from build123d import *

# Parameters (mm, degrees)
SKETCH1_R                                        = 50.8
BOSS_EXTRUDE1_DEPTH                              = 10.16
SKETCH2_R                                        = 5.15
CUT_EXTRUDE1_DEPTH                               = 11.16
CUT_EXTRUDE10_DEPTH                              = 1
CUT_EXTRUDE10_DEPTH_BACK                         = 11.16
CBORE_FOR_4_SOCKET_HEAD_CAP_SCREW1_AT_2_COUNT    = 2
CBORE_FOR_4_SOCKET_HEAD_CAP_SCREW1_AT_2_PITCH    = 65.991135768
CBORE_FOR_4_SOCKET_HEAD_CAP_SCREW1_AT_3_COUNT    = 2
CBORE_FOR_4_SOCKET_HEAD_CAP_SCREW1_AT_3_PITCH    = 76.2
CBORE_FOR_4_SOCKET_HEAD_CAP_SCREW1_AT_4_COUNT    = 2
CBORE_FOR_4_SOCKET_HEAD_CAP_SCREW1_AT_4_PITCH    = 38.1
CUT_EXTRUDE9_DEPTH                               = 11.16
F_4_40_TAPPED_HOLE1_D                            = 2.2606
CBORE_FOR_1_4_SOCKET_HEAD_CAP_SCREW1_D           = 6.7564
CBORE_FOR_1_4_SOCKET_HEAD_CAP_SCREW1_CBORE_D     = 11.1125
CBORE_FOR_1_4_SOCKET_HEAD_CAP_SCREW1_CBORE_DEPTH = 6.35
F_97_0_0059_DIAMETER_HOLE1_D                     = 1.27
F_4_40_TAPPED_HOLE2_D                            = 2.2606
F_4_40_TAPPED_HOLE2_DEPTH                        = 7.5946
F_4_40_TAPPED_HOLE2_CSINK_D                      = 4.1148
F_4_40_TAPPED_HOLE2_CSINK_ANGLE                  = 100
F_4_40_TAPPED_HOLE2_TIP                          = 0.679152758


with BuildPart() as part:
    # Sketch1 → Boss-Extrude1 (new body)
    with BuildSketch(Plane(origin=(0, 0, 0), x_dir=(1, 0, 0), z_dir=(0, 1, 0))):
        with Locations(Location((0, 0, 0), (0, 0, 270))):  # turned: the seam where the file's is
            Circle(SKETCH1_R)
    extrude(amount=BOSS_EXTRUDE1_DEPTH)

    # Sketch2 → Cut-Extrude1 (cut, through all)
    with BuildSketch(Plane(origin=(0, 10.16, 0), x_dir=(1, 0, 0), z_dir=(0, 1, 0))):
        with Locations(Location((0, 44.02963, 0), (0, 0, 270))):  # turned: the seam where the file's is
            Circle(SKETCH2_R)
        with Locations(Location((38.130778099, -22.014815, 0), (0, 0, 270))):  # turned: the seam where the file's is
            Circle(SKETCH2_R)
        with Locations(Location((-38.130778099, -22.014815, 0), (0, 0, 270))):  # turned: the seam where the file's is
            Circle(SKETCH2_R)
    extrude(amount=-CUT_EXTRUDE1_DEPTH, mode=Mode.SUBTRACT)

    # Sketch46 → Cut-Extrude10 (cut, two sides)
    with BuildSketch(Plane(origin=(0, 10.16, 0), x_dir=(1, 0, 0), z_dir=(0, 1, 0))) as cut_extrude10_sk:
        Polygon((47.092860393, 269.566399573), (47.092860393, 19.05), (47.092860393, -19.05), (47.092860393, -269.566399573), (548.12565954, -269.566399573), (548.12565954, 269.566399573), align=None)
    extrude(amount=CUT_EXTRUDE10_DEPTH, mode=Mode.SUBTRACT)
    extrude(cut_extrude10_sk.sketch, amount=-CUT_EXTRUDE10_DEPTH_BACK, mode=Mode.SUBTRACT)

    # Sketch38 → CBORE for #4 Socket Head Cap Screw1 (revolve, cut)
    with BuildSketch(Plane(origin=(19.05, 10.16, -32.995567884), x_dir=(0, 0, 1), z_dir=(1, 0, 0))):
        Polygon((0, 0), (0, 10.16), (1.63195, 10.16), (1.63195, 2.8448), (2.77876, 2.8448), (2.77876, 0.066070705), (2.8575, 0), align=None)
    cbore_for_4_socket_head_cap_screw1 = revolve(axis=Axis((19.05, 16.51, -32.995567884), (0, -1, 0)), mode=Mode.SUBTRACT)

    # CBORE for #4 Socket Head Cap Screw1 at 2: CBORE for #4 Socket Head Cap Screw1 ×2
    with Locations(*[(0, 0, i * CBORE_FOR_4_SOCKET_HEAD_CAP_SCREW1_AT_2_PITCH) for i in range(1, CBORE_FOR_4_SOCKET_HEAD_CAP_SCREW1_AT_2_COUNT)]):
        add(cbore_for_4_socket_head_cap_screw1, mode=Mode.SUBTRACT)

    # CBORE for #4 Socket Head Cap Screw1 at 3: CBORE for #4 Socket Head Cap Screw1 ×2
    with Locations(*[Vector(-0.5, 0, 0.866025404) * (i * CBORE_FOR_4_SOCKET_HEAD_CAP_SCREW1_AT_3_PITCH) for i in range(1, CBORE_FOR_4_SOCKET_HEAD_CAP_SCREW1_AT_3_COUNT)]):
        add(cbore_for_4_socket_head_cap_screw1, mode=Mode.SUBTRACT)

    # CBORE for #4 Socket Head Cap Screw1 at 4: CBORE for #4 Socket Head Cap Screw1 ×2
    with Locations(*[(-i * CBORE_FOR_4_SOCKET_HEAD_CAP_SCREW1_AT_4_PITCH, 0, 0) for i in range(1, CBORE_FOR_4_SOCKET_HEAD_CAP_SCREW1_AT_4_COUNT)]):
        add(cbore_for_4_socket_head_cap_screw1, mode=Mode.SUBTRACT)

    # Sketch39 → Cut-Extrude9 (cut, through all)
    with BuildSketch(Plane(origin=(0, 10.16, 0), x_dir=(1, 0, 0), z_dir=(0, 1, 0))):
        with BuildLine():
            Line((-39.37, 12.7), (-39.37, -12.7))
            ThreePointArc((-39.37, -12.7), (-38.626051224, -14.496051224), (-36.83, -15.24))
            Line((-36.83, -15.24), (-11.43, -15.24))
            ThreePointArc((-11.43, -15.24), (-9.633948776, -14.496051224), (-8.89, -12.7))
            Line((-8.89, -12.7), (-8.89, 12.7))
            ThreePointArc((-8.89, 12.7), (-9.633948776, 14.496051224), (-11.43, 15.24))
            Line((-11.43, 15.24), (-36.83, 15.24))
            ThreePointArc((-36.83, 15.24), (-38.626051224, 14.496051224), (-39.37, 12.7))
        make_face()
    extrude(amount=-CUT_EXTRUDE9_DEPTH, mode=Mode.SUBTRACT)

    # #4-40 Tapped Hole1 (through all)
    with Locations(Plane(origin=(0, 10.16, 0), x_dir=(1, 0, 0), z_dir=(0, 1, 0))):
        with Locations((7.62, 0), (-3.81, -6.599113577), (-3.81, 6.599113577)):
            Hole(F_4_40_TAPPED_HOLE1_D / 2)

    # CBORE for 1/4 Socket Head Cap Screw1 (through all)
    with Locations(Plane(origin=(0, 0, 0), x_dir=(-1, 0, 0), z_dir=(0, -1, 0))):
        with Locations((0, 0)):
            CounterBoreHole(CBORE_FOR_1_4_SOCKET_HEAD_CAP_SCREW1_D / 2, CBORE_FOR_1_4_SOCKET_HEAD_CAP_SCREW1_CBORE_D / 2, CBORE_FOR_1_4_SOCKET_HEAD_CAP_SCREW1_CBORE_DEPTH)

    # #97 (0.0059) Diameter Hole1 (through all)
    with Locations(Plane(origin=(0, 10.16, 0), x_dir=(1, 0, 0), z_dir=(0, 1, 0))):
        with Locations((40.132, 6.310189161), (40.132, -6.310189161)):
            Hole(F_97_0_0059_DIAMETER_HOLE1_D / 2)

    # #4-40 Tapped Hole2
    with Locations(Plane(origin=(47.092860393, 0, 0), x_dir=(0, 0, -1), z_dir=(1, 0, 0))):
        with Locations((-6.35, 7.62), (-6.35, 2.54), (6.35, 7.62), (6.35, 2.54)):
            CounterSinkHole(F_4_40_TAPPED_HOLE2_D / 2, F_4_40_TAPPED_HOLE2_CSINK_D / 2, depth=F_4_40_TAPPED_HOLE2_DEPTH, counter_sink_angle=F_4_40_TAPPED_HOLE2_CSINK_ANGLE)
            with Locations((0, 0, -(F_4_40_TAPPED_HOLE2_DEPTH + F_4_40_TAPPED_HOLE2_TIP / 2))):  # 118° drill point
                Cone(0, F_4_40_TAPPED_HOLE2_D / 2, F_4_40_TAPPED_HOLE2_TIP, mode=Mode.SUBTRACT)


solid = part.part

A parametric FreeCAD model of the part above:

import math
import FreeCAD as App
import Part
import Sketcher
Q = App.Units.Quantity


def add_polygon(sketch, points):
    """Adds a closed chain of lines whose ends are joined by coincident constraints."""
    first, n = sketch.GeometryCount, len(points)
    for a, b in zip(points, points[1:] + points[:1]):
        sketch.addGeometry(Part.LineSegment(App.Vector(*a, 0), App.Vector(*b, 0)), False)
    for i in range(n):
        sketch.addConstraint(Sketcher.Constraint("Coincident", first + i, 2, first + (i + 1) % n, 1))

doc = App.newDocument("Part")
body = doc.addObject("PartDesign::Body", "Body")

sketch1 = doc.addObject("Sketcher::SketchObject", "Sketch")
body.addObject(sketch1)
sketch1.AttachmentSupport = (doc.XZ_Plane, [""])
sketch1.MapMode = "FlatFace"
sketch1.addGeometry(Part.Circle(App.Vector(0, 0, 0), App.Vector(0, 0, 1), 51), False)
sketch1.addConstraint([
    Sketcher.Constraint("Coincident", 0, 3, -1, 1),
    Sketcher.Constraint("Diameter", 0, Q("4 in")),
])
pad1 = doc.addObject("PartDesign::Pad", "Pad")
body.addObject(pad1)
pad1.Profile = sketch1
pad1.Length = Q("0.4 in")
pad1.Reversed = True

sketch2 = doc.addObject("Sketcher::SketchObject", "Sketch001")
body.addObject(sketch2)
sketch2.AttachmentSupport = (doc.XZ_Plane, [""])
sketch2.MapMode = "FlatFace"
sketch2.AttachmentOffset = App.Placement(App.Vector(0, 0, -0.4 * 25.4), App.Rotation())
sketch2.addGeometry([
    Part.Circle(App.Vector(0, -44, 0), App.Vector(0, 0, 1), 5),
    Part.Circle(App.Vector(38, 22, 0), App.Vector(0, 0, 1), 5),
    Part.Circle(App.Vector(-38, 22, 0), App.Vector(0, 0, 1), 5),
], False)
sketch2.addConstraint([
    Sketcher.Constraint("Equal", 0, 1),
    Sketcher.Constraint("Equal", 1, 2),
    Sketcher.Constraint("Symmetric", 1, 3, 2, 3, -2),
    Sketcher.Constraint("PointOnObject", 0, 3, -2),
    Sketcher.Constraint("Diameter", 0, 10.3),
    Sketcher.Constraint("DistanceY", 0, 3, -1, 1, 44.02963),
    Sketcher.Constraint("DistanceX", -1, 1, 1, 3, 38.130778),
    Sketcher.Constraint("DistanceY", -1, 1, 1, 3, 22.014815),
])
pocket1 = doc.addObject("PartDesign::Pocket", "Pocket")
body.addObject(pocket1)
pocket1.Profile = sketch2
pocket1.Type = "ThroughAll"
pocket1.Reversed = True

sketch3 = doc.addObject("Sketcher::SketchObject", "Sketch002")
body.addObject(sketch3)
sketch3.AttachmentSupport = (doc.XZ_Plane, [""])
sketch3.MapMode = "FlatFace"
sketch3.AttachmentOffset = App.Placement(App.Vector(0, 0, -0.4 * 25.4), App.Rotation())
add_polygon(sketch3, [(47, -270), (47, 270), (548, 270), (548, -270)])
sketch3.addConstraint([
    Sketcher.Constraint("Vertical", 0),
    Sketcher.Constraint("Horizontal", 1),
    Sketcher.Constraint("Vertical", 2),
    Sketcher.Constraint("Horizontal", 3),
    Sketcher.Constraint("DistanceX", 1, 1, 1, 2, 501.032799),
    Sketcher.Constraint("DistanceY", 0, 1, 0, 2, 539.132799),
    Sketcher.Constraint("DistanceY", -1, 1, 0, 2, 269.5664),
    Sketcher.Constraint("DistanceX", -1, 1, 0, 2, 47.09286),
])
pocket2 = doc.addObject("PartDesign::Pocket", "Pocket001")
body.addObject(pocket2)
pocket2.Profile = sketch3
pocket2.Type = "ThroughAll"
pocket2.Midplane = True

sketch4 = doc.addObject("Sketcher::SketchObject", "Sketch003")
body.addObject(sketch4)
sketch4.AttachmentSupport = (doc.YZ_Plane, [""])
sketch4.MapMode = "FlatFace"
sketch4.AttachmentOffset = App.Placement(App.Vector(0, 0, 0.75 * 25.4), App.Rotation())
add_polygon(sketch4, [(0, -33), (10.16, -33), (10.16, -30.14), (10.09, -30.22), (7.32, -30.22), (7.32, -31.36), (0, -31.36)])
sketch4.addGeometry(Part.LineSegment(App.Vector(10.16, -33, 0), App.Vector(0, -33, 0)), True)
sketch4.addConstraint([
    Sketcher.Constraint("Horizontal", 0),
    Sketcher.Constraint("Vertical", 1),
    Sketcher.Constraint("Horizontal", 3),
    Sketcher.Constraint("Vertical", 4),
    Sketcher.Constraint("Horizontal", 5),
    Sketcher.Constraint("Vertical", 6),
    Sketcher.Constraint("Horizontal", 7),
    Sketcher.Constraint("Coincident", 7, 1, 0, 2),
    Sketcher.Constraint("PointOnObject", 5, 2, -2),
    Sketcher.Constraint("PointOnObject", 7, 2, -2),
    Sketcher.Constraint("DistanceX", 0, 1, 0, 2, Q("0.4 in")),
    Sketcher.Constraint("Angle", 2, Q("-130 deg")),
    Sketcher.Constraint("DistanceX", 5, 2, 5, 1, Q("0.288 in")),
    Sketcher.Constraint("DistanceY", 1, 1, 1, 2, Q("0.1125 in")),
    Sketcher.Constraint("DistanceY", 2, 2, 1, 2, Q("0.0031 in")),
    Sketcher.Constraint("DistanceY", 4, 2, 4, 1, 1.14681),
    Sketcher.Constraint("DistanceY", 0, 2, -1, 1, 32.995568),
])
groove = doc.addObject("PartDesign::Groove", "Groove")
body.addObject(groove)
groove.Profile = sketch4
groove.ReferenceAxis = (sketch4, ["Axis0"])
groove.Angle = 360
doc.recompute()

linearpattern = doc.addObject("PartDesign::LinearPattern", "LinearPattern")
body.addObject(linearpattern)
linearpattern.Originals = [groove]
linearpattern.Direction = (doc.Z_Axis, [""])
linearpattern.Mode = "offset"
linearpattern.Offset = 65.991136
linearpattern.Occurrences = 2
body.Tip = linearpattern
doc.recompute()

datumline = doc.addObject("PartDesign::Line", "DatumLine")
body.addObject(datumline)
datumline.Placement = App.Placement(App.Vector(0, 0, 0), App.Rotation(App.Vector(0, 0, 1), App.Vector(-0.5, 0, 0.866025404)))
linearpattern2 = doc.addObject("PartDesign::LinearPattern", "LinearPattern001")
body.addObject(linearpattern2)
linearpattern2.Originals = [groove]
linearpattern2.Direction = (datumline, [""])
linearpattern2.Mode = "offset"
linearpattern2.Offset = Q("3 in")
linearpattern2.Occurrences = 2
body.Tip = linearpattern2
doc.recompute()

linearpattern3 = doc.addObject("PartDesign::LinearPattern", "LinearPattern002")
body.addObject(linearpattern3)
linearpattern3.Originals = [groove]
linearpattern3.Direction = (doc.X_Axis, [""])
linearpattern3.Mode = "offset"
linearpattern3.Offset = Q("1.5 in")
linearpattern3.Occurrences = 2
linearpattern3.Reversed = True
body.Tip = linearpattern3

sketch5 = doc.addObject("Sketcher::SketchObject", "Sketch004")
body.addObject(sketch5)
sketch5.AttachmentSupport = (doc.XZ_Plane, [""])
sketch5.MapMode = "FlatFace"
sketch5.AttachmentOffset = App.Placement(App.Vector(0, 0, -0.4 * 25.4), App.Rotation())
sketch5.addGeometry([
    Part.LineSegment(App.Vector(-39.4, -12.7, 0), App.Vector(-39.4, 12.7, 0)),
    Part.ArcOfCircle(Part.Circle(App.Vector(-36.8, 12.7, 0), App.Vector(0, 0, 1), 2.5), math.radians(90), math.radians(180)),
    Part.LineSegment(App.Vector(-36.8, 15.2, 0), App.Vector(-11.4, 15.2, 0)),
    Part.ArcOfCircle(Part.Circle(App.Vector(-11.4, 12.7, 0), App.Vector(0, 0, 1), 2.5), math.radians(0), math.radians(90)),
    Part.LineSegment(App.Vector(-8.9, 12.7, 0), App.Vector(-8.9, -12.7, 0)),
    Part.ArcOfCircle(Part.Circle(App.Vector(-11.4, -12.7, 0), App.Vector(0, 0, 1), 2.5), math.radians(-90), math.radians(0)),
    Part.LineSegment(App.Vector(-11.4, -15.2, 0), App.Vector(-36.8, -15.2, 0)),
    Part.ArcOfCircle(Part.Circle(App.Vector(-36.8, -12.7, 0), App.Vector(0, 0, 1), 2.5), math.radians(-180), math.radians(-90)),
], False)
sketch5.addConstraint([
    Sketcher.Constraint("Tangent", 0, 2, 1, 2),
    Sketcher.Constraint("Tangent", 1, 1, 2, 1),
    Sketcher.Constraint("Tangent", 2, 2, 3, 2),
    Sketcher.Constraint("Tangent", 3, 1, 4, 1),
    Sketcher.Constraint("Tangent", 4, 2, 5, 2),
    Sketcher.Constraint("Tangent", 5, 1, 6, 1),
    Sketcher.Constraint("Tangent", 6, 2, 7, 2),
    Sketcher.Constraint("Tangent", 7, 1, 0, 1),
    Sketcher.Constraint("Vertical", 0),
    Sketcher.Constraint("Horizontal", 2),
    Sketcher.Constraint("Vertical", 4),
    Sketcher.Constraint("Horizontal", 6),
    Sketcher.Constraint("Equal", 1, 3),
    Sketcher.Constraint("Equal", 3, 5),
    Sketcher.Constraint("Equal", 5, 7),
    Sketcher.Constraint("Equal", 6, 0),
    Sketcher.Constraint("Radius", 1, Q("0.1 in")),
    Sketcher.Constraint("DistanceX", 2, 1, 2, 2, Q("1 in")),
    Sketcher.Constraint("DistanceY", -1, 1, 1, 3, Q("0.5 in")),
    Sketcher.Constraint("DistanceX", 1, 3, -1, 1, Q("1.45 in")),
])
pocket3 = doc.addObject("PartDesign::Pocket", "Pocket002")
body.addObject(pocket3)
pocket3.Profile = sketch5
pocket3.Type = "ThroughAll"
pocket3.Reversed = True

sketch6 = doc.addObject("Sketcher::SketchObject", "Sketch005")
body.addObject(sketch6)
sketch6.AttachmentSupport = (doc.XZ_Plane, [""])
sketch6.MapMode = "FlatFace"
sketch6.AttachmentOffset = App.Placement(App.Vector(0, 0, -0.4 * 25.4), App.Rotation())
sketch6.addGeometry([
    Part.Circle(App.Vector(7.6, 0, 0), App.Vector(0, 0, 1), 1.1),
    Part.Circle(App.Vector(-3.8, 6.6, 0), App.Vector(0, 0, 1), 1.1),
    Part.Circle(App.Vector(-3.8, -6.6, 0), App.Vector(0, 0, 1), 1.1),
], False)
sketch6.addConstraint([
    Sketcher.Constraint("Equal", 0, 1),
    Sketcher.Constraint("Equal", 1, 2),
    Sketcher.Constraint("Symmetric", 1, 3, 2, 3, -1),
    Sketcher.Constraint("PointOnObject", 0, 3, -1),
    Sketcher.Constraint("Diameter", 0, Q("0.089 in")),
    Sketcher.Constraint("DistanceX", -1, 1, 0, 3, Q("0.3 in")),
    Sketcher.Constraint("DistanceX", 1, 3, -1, 1, Q("0.15 in")),
    Sketcher.Constraint("DistanceY", -1, 1, 1, 3, 6.599114),
])
doc.recompute()
hole = doc.addObject("PartDesign::Hole", "Hole")
body.addObject(hole)
hole.Profile = sketch6
hole.ThreadType = "None"
hole.Diameter = Q("0.089 in")
hole.DepthType = "ThroughAll"
hole.Reversed = True

sketch7 = doc.addObject("Sketcher::SketchObject", "Sketch006")
body.addObject(sketch7)
sketch7.AttachmentSupport = (doc.XZ_Plane, [""])
sketch7.MapMode = "FlatFace"
sketch7.addGeometry(Part.Circle(App.Vector(0, 0, 0), App.Vector(0, 0, 1), 3.4), False)
sketch7.addConstraint([
    Sketcher.Constraint("Coincident", 0, 3, -1, 1),
    Sketcher.Constraint("Diameter", 0, Q("0.266 in")),
])
doc.recompute()
hole2 = doc.addObject("PartDesign::Hole", "Hole001")
body.addObject(hole2)
hole2.Profile = sketch7
hole2.ThreadType = "None"
hole2.Diameter = Q("0.266 in")
hole2.DepthType = "ThroughAll"
hole2.HoleCutType = "Counterbore"
hole2.HoleCutDiameter = Q("0.4375 in")
hole2.HoleCutDepth = Q("0.25 in")

sketch8 = doc.addObject("Sketcher::SketchObject", "Sketch007")
body.addObject(sketch8)
sketch8.AttachmentSupport = (doc.XZ_Plane, [""])
sketch8.MapMode = "FlatFace"
sketch8.AttachmentOffset = App.Placement(App.Vector(0, 0, -0.4 * 25.4), App.Rotation())
sketch8.addGeometry([
    Part.Circle(App.Vector(40.1, -6.3, 0), App.Vector(0, 0, 1), 0.6),
    Part.Circle(App.Vector(40.1, 6.3, 0), App.Vector(0, 0, 1), 0.6),
], False)
sketch8.addConstraint([
    Sketcher.Constraint("Equal", 0, 1),
    Sketcher.Constraint("Symmetric", 0, 3, 1, 3, -1),
    Sketcher.Constraint("Diameter", 0, Q("0.05 in")),
    Sketcher.Constraint("DistanceX", -1, 1, 0, 3, Q("1.58 in")),
    Sketcher.Constraint("DistanceY", 0, 3, -1, 1, 6.310189),
])
doc.recompute()
hole3 = doc.addObject("PartDesign::Hole", "Hole002")
body.addObject(hole3)
hole3.Profile = sketch8
hole3.ThreadType = "None"
hole3.Diameter = Q("0.05 in")
hole3.DepthType = "ThroughAll"
hole3.Reversed = True

sketch9 = doc.addObject("Sketcher::SketchObject", "Sketch008")
body.addObject(sketch9)
sketch9.AttachmentSupport = (doc.YZ_Plane, [""])
sketch9.MapMode = "FlatFace"
sketch9.AttachmentOffset = App.Placement(App.Vector(0, 0, 47.09286), App.Rotation())
sketch9.addGeometry([
    Part.Circle(App.Vector(7.6, 6.3, 0), App.Vector(0, 0, 1), 1.1),
    Part.Circle(App.Vector(2.5, 6.3, 0), App.Vector(0, 0, 1), 1.1),
    Part.Circle(App.Vector(7.6, -6.3, 0), App.Vector(0, 0, 1), 1.1),
    Part.Circle(App.Vector(2.5, -6.3, 0), App.Vector(0, 0, 1), 1.1),
], False)
sketch9.addConstraint([
    Sketcher.Constraint("Equal", 0, 1),
    Sketcher.Constraint("Equal", 1, 2),
    Sketcher.Constraint("Equal", 2, 3),
    Sketcher.Constraint("Symmetric", 0, 3, 2, 3, -1),
    Sketcher.Constraint("Symmetric", 1, 3, 3, 3, -1),
    Sketcher.Constraint("Horizontal", 0, 3, 1, 3),
    Sketcher.Constraint("Diameter", 0, Q("0.089 in")),
    Sketcher.Constraint("DistanceX", -1, 1, 0, 3, Q("0.3 in")),
    Sketcher.Constraint("DistanceX", -1, 1, 1, 3, Q("0.1 in")),
    Sketcher.Constraint("DistanceY", 2, 3, 0, 3, Q("0.5 in")),
])
doc.recompute()
hole4 = doc.addObject("PartDesign::Hole", "Hole003")
body.addObject(hole4)
hole4.Profile = sketch9
hole4.ThreadType = "None"
hole4.Diameter = Q("0.089 in")
hole4.DepthType = "Dimension"
hole4.Depth = Q("0.299 in")
hole4.DrillPoint = "Angled"
hole4.DrillPointAngle = 118
hole4.HoleCutType = "Countersink"
hole4.HoleCutDiameter = Q("0.162 in")
hole4.HoleCutCountersinkAngle = 100

doc.recompute()
